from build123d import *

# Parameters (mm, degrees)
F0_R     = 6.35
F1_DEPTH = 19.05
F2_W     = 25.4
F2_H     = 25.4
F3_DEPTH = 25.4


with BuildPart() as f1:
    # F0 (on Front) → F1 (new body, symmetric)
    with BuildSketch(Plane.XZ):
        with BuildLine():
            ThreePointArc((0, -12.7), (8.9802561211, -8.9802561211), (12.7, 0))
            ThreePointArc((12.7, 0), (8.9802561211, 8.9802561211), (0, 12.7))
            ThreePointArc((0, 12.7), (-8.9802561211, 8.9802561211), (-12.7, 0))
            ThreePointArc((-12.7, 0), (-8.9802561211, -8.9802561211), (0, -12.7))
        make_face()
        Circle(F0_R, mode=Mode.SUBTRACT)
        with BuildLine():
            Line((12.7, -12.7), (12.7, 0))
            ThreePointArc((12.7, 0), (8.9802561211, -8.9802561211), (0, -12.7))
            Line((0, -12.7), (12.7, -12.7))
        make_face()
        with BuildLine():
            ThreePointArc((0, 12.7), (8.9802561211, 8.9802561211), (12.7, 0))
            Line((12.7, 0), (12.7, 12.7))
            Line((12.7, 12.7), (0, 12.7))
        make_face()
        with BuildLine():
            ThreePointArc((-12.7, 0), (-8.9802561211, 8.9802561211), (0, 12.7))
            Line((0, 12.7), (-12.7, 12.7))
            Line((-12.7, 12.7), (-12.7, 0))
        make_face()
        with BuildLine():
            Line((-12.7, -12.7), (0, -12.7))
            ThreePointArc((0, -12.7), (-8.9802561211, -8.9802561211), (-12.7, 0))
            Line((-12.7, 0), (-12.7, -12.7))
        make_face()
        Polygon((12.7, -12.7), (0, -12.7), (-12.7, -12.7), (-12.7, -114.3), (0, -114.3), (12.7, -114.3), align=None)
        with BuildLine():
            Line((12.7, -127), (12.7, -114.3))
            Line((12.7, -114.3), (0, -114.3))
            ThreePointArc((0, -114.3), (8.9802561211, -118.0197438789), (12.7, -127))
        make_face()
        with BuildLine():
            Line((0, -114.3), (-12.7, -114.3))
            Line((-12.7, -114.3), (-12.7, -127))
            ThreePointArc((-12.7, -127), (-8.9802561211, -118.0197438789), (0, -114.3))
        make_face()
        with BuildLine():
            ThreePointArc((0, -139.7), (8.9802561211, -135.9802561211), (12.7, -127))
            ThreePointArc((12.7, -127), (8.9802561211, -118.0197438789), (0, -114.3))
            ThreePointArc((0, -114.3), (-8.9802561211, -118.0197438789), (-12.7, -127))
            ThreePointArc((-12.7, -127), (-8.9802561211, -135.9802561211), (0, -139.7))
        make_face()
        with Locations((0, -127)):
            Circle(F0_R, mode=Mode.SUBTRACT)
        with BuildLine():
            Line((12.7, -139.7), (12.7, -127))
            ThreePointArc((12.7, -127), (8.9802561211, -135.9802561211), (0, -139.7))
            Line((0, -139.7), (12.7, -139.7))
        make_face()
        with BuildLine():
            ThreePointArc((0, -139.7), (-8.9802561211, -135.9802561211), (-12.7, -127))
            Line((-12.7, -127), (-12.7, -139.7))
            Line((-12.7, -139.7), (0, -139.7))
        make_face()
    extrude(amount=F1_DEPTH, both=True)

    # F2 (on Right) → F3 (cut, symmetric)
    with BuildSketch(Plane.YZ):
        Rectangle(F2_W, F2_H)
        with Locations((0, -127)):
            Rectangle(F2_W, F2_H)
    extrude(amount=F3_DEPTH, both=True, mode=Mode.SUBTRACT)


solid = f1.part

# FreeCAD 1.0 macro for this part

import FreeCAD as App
import Part
import Sketcher

V = App.Vector
Q = App.Units.Quantity

doc = App.newDocument("Part")
body = doc.addObject("PartDesign::Body", "Body")

sketch1 = doc.addObject("Sketcher::SketchObject", "Sketch")
body.addObject(sketch1)
sketch1.AttachmentSupport = (doc.XZ_Plane, [""])
sketch1.MapMode = "FlatFace"
sketch1.addGeometry(Part.LineSegment(V(13, 13, 0), V(-13, 13, 0)), False)
sketch1.addGeometry(Part.LineSegment(V(-13, 13, 0), V(-13, -140, 0)), False)
sketch1.addGeometry(Part.LineSegment(V(-13, -140, 0), V(13, -140, 0)), False)
sketch1.addGeometry(Part.LineSegment(V(13, -140, 0), V(13, 13, 0)), False)
sketch1.addGeometry(Part.Circle(V(0, -127, 0), V(0, 0, 1), 6), False)
sketch1.addGeometry(Part.Circle(V(0, 0, 0), V(0, 0, 1), 6), False)
sketch1.addConstraint(Sketcher.Constraint("Coincident", 0, 2, 1, 1))
sketch1.addConstraint(Sketcher.Constraint("Coincident", 1, 2, 2, 1))
sketch1.addConstraint(Sketcher.Constraint("Coincident", 2, 2, 3, 1))
sketch1.addConstraint(Sketcher.Constraint("Coincident", 3, 2, 0, 1))
sketch1.addConstraint(Sketcher.Constraint("Horizontal", 0))
sketch1.addConstraint(Sketcher.Constraint("Vertical", 1))
sketch1.addConstraint(Sketcher.Constraint("Horizontal", 2))
sketch1.addConstraint(Sketcher.Constraint("Vertical", 3))
sketch1.addConstraint(Sketcher.Constraint("Coincident", 5, 3, -1, 1))
sketch1.addConstraint(Sketcher.Constraint("Equal", 4, 5))
sketch1.addConstraint(Sketcher.Constraint("PointOnObject", 4, 3, -2))
sketch1.addConstraint(Sketcher.Constraint("Diameter", 4, Q("0.5 in")))
sketch1.addConstraint(Sketcher.Constraint("DistanceX", 0, 2, 0, 1, Q("1 in")))
sketch1.addConstraint(Sketcher.Constraint("DistanceY", 1, 2, 1, 1, Q("6 in")))
sketch1.addConstraint(Sketcher.Constraint("DistanceY", 4, 3, -1, 1, Q("5 in")))
sketch1.addConstraint(Sketcher.Constraint("DistanceX", 0, 2, -1, 1, Q("0.5 in")))
sketch1.addConstraint(Sketcher.Constraint("DistanceY", -1, 1, 0, 2, Q("0.5 in")))
pad1 = doc.addObject("PartDesign::Pad", "Pad")
body.addObject(pad1)
pad1.Profile = sketch1
pad1.Length = Q("1.5 in")
pad1.Midplane = True

sketch2 = doc.addObject("Sketcher::SketchObject", "Sketch001")
body.addObject(sketch2)
sketch2.AttachmentSupport = (doc.YZ_Plane, [""])
sketch2.MapMode = "FlatFace"
sketch2.addGeometry(Part.LineSegment(V(-13, 13, 0), V(-13, -13, 0)), False)
sketch2.addGeometry(Part.LineSegment(V(-13, -13, 0), V(13, -13, 0)), False)
sketch2.addGeometry(Part.LineSegment(V(13, -13, 0), V(13, 13, 0)), False)
sketch2.addGeometry(Part.LineSegment(V(13, 13, 0), V(-13, 13, 0)), False)
sketch2.addGeometry(Part.LineSegment(V(-13, -114, 0), V(-13, -140, 0)), False)
sketch2.addGeometry(Part.LineSegment(V(-13, -140, 0), V(13, -140, 0)), False)
sketch2.addGeometry(Part.LineSegment(V(13, -140, 0), V(13, -114, 0)), False)
sketch2.addGeometry(Part.LineSegment(V(13, -114, 0), V(-13, -114, 0)), False)
sketch2.addConstraint(Sketcher.Constraint("Coincident", 0, 2, 1, 1))
sketch2.addConstraint(Sketcher.Constraint("Coincident", 1, 2, 2, 1))
sketch2.addConstraint(Sketcher.Constraint("Coincident", 2, 2, 3, 1))
sketch2.addConstraint(Sketcher.Constraint("Coincident", 3, 2, 0, 1))
sketch2.addConstraint(Sketcher.Constraint("Coincident", 4, 2, 5, 1))
sketch2.addConstraint(Sketcher.Constraint("Coincident", 5, 2, 6, 1))
sketch2.addConstraint(Sketcher.Constraint("Coincident", 6, 2, 7, 1))
sketch2.addConstraint(Sketcher.Constraint("Coincident", 7, 2, 4, 1))
sketch2.addConstraint(Sketcher.Constraint("Vertical", 0))
sketch2.addConstraint(Sketcher.Constraint("Horizontal", 1))
sketch2.addConstraint(Sketcher.Constraint("Vertical", 2))
sketch2.addConstraint(Sketcher.Constraint("Horizontal", 3))
sketch2.addConstraint(Sketcher.Constraint("Vertical", 4))
sketch2.addConstraint(Sketcher.Constraint("Horizontal", 5))
sketch2.addConstraint(Sketcher.Constraint("Vertical", 6))
sketch2.addConstraint(Sketcher.Constraint("Horizontal", 7))
sketch2.addConstraint(Sketcher.Constraint("Symmetric", 0, 2, 2, 2, -1, 1))
sketch2.addConstraint(Sketcher.Constraint("Vertical", 3, 2, 4, 2))
sketch2.addConstraint(Sketcher.Constraint("Vertical", 2, 2, 5, 2))
sketch2.addConstraint(Sketcher.Constraint("Equal", 7, 0))
sketch2.addConstraint(Sketcher.Constraint("Equal", 2, 4))
sketch2.addConstraint(Sketcher.Constraint("DistanceX", 1, 1, 1, 2, Q("1 in")))
sketch2.addConstraint(Sketcher.Constraint("DistanceY", 4, 2, 0, 2, Q("5 in")))
pocket1 = doc.addObject("PartDesign::Pocket", "Pocket")
body.addObject(pocket1)
pocket1.Profile = sketch2
pocket1.Length = Q("2 in")
pocket1.Midplane = True

doc.recompute()
